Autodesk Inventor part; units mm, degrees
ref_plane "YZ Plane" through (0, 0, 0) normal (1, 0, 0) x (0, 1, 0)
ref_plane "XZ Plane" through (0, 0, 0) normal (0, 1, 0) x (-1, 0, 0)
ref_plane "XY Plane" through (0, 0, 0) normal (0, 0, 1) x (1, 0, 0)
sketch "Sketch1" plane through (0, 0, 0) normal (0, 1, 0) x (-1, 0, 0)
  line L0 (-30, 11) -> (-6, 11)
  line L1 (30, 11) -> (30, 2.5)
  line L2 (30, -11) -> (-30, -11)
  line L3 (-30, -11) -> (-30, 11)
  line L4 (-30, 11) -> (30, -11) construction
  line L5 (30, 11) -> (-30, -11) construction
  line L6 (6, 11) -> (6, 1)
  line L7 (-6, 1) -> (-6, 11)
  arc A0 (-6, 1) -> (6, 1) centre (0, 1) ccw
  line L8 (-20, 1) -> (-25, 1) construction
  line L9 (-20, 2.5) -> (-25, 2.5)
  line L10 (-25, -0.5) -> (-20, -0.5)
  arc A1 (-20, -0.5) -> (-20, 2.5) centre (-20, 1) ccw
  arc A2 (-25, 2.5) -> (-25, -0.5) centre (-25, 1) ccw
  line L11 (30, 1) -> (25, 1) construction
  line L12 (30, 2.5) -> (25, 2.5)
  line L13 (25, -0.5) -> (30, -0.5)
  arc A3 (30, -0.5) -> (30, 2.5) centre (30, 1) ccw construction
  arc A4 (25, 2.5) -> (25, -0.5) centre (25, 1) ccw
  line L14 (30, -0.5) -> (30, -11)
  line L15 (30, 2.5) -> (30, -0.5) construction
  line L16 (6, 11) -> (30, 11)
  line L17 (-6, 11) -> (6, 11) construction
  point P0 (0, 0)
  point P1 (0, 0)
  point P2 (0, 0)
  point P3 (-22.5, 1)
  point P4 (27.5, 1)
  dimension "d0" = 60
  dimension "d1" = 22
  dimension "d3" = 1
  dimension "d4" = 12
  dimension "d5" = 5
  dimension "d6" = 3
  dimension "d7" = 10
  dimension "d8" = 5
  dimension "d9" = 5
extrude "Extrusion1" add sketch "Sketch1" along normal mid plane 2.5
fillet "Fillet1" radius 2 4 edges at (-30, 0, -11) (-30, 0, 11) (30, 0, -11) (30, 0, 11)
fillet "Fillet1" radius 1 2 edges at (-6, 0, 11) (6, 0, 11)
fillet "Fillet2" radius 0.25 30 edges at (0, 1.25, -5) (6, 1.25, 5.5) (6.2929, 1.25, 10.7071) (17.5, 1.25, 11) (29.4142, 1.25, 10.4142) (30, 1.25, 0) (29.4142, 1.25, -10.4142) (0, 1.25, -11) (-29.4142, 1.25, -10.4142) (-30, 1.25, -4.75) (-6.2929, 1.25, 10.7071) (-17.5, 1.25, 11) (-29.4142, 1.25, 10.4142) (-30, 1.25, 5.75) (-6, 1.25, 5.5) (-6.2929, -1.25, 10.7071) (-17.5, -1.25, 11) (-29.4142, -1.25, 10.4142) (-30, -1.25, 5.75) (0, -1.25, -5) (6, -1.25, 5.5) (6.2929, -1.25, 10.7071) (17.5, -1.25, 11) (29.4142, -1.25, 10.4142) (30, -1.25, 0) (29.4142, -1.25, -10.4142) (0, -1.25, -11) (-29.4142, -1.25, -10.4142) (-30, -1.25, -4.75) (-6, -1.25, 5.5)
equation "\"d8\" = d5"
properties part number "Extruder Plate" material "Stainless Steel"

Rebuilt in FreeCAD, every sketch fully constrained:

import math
import FreeCAD as App
import Part
import Sketcher
Q = App.Units.Quantity


def edges_at(feature, points):
    """Names of the edges that pass closest to the given points."""
    edges = feature.Shape.Edges
    near = lambda p: min(range(len(edges)), key=lambda i: edges[i].distToShape(Part.Vertex(*p))[0])
    return sorted({f"Edge{near(p) + 1}" for p in points})

doc = App.newDocument("Part")
body = doc.addObject("PartDesign::Body", "Body")

# Sketch on XZ plane
sketch1 = body.newObject("Sketcher::SketchObject", "Sketch")
sketch1.AttachmentSupport = (doc.getObject("XZ_Plane"), [""])
sketch1.MapMode = "FlatFace"
sketch1.addGeometry([
    Part.LineSegment(App.Vector(6, 11, 0), App.Vector(30, 11, 0)),  # 0
    Part.LineSegment(App.Vector(30, 11, 0), App.Vector(30, -11, 0)),  # 1
    Part.LineSegment(App.Vector(30, -11, 0), App.Vector(-30, -11, 0)),  # 2
    Part.LineSegment(App.Vector(-30, -11, 0), App.Vector(-30, -0.5, 0)),  # 3
    Part.LineSegment(App.Vector(-30, -0.5, 0), App.Vector(-25, -0.5, 0)),  # 4
    Part.ArcOfCircle(Part.Circle(App.Vector(-25, 1, 0), App.Vector(0, 0, 1), 1.5), math.radians(-90), math.radians(90)),  # 5
    Part.LineSegment(App.Vector(-25, 2.5, 0), App.Vector(-30, 2.5, 0)),  # 6
    Part.LineSegment(App.Vector(-30, 2.5, 0), App.Vector(-30, 11, 0)),  # 7
    Part.LineSegment(App.Vector(-30, 11, 0), App.Vector(-6, 11, 0)),  # 8
    Part.LineSegment(App.Vector(-6, 11, 0), App.Vector(-6, 1, 0)),  # 9
    Part.ArcOfCircle(Part.Circle(App.Vector(0, 1, 0), App.Vector(0, 0, 1), 6), math.radians(180), math.radians(360)),  # 10
    Part.LineSegment(App.Vector(6, 1, 0), App.Vector(6, 11, 0)),  # 11
    Part.LineSegment(App.Vector(25, 2.5, 0), App.Vector(20, 2.5, 0)),  # 12
    Part.ArcOfCircle(Part.Circle(App.Vector(20, 1, 0), App.Vector(0, 0, 1), 1.5), math.radians(90), math.radians(270)),  # 13
    Part.LineSegment(App.Vector(20, -0.5, 0), App.Vector(25, -0.5, 0)),  # 14
    Part.ArcOfCircle(Part.Circle(App.Vector(25, 1, 0), App.Vector(0, 0, 1), 1.5), math.radians(-90), math.radians(90)),  # 15
], False)
sketch1.addConstraint([
    Sketcher.Constraint("Coincident", 0, 2, 1, 1),
    Sketcher.Constraint("Coincident", 1, 2, 2, 1),
    Sketcher.Constraint("Coincident", 2, 2, 3, 1),
    Sketcher.Constraint("Coincident", 3, 2, 4, 1),
    Sketcher.Constraint("Tangent", 4, 2, 5, 1),
    Sketcher.Constraint("Tangent", 5, 2, 6, 1),
    Sketcher.Constraint("Coincident", 6, 2, 7, 1),
    Sketcher.Constraint("Coincident", 7, 2, 8, 1),
    Sketcher.Constraint("Coincident", 8, 2, 9, 1),
    Sketcher.Constraint("Tangent", 9, 2, 10, 1),
    Sketcher.Constraint("Tangent", 10, 2, 11, 1),
    Sketcher.Constraint("Coincident", 11, 2, 0, 1),
    Sketcher.Constraint("Tangent", 12, 2, 13, 1),
    Sketcher.Constraint("Tangent", 13, 2, 14, 1),
    Sketcher.Constraint("Tangent", 14, 2, 15, 1),
    Sketcher.Constraint("Tangent", 15, 2, 12, 1),
    Sketcher.Constraint("Horizontal", 0),
    Sketcher.Constraint("Vertical", 1),
    Sketcher.Constraint("Horizontal", 2),
    Sketcher.Constraint("Vertical", 3),
    Sketcher.Constraint("Horizontal", 4),
    Sketcher.Constraint("Horizontal", 6),
    Sketcher.Constraint("Vertical", 7),
    Sketcher.Constraint("Horizontal", 8),
    Sketcher.Constraint("Vertical", 9),
    Sketcher.Constraint("Vertical", 11),
    Sketcher.Constraint("Horizontal", 12),
    Sketcher.Constraint("Horizontal", 14),
    Sketcher.Constraint("Equal", 5, 13),
    Sketcher.Constraint("Symmetric", 0, 2, 2, 2, -1, 1),
    Sketcher.Constraint("Symmetric", 1, 2, 7, 2, -1, 1),
    Sketcher.Constraint("Symmetric", 5, 3, 15, 3, -2),
    Sketcher.Constraint("PointOnObject", 10, 3, -2),
    Sketcher.Constraint("Horizontal", 5, 3, 10, 3),
    Sketcher.Constraint("Equal", 6, 12),
    Sketcher.Constraint("Radius", 10, Q("6 mm")),
    Sketcher.Constraint("Radius", 5, Q("1.5 mm")),
    Sketcher.Constraint("DistanceX", 2, 2, 2, 1, Q("60 mm")),
    Sketcher.Constraint("DistanceX", 4, 1, 4, 2, Q("5 mm")),
    Sketcher.Constraint("DistanceY", 1, 2, 1, 1, Q("22 mm")),
    Sketcher.Constraint("DistanceY", 9, 2, 9, 1, Q("10 mm")),
])
pad1 = body.newObject("PartDesign::Pad", "Pad")
pad1.Profile = sketch1
pad1.Length = 2.5
pad1.Midplane = True
doc.recompute()

fillet = body.newObject("PartDesign::Fillet", "Fillet")
fillet.Base = (pad1, edges_at(pad1, [
    (-30, 0, -11),
    (-30, 0, 11),
    (30, 0, -11),
    (30, 0, 11),
]))
fillet.Radius = 2
doc.recompute()

fillet2 = body.newObject("PartDesign::Fillet", "Fillet001")
fillet2.Base = (fillet, edges_at(fillet, [(-6, 0, 11), (6, 0, 11)]))
fillet2.Radius = 1
doc.recompute()

fillet3 = body.newObject("PartDesign::Fillet", "Fillet002")
fillet3.Base = (fillet2, edges_at(fillet2, [
    (0, 1.25, -5),
    (6, 1.25, 5.5),
    (6.293, 1.25, 10.707),
    (17.5, 1.25, 11),
    (29.414, 1.25, 10.414),
    (30, 1.25, 0),
    (29.414, 1.25, -10.414),
    (0, 1.25, -11),
    (-29.414, 1.25, -10.414),
    (-30, 1.25, -4.75),
    (-6.293, 1.25, 10.707),
    (-17.5, 1.25, 11),
    (-29.414, 1.25, 10.414),
    (-30, 1.25, 5.75),
    (-6, 1.25, 5.5),
    (-6.293, -1.25, 10.707),
    (-17.5, -1.25, 11),
    (-29.414, -1.25, 10.414),
    (-30, -1.25, 5.75),
    (0, -1.25, -5),
    (6, -1.25, 5.5),
    (6.293, -1.25, 10.707),
    (17.5, -1.25, 11),
    (29.414, -1.25, 10.414),
    (30, -1.25, 0),
    (29.414, -1.25, -10.414),
    (0, -1.25, -11),
    (-29.414, -1.25, -10.414),
    (-30, -1.25, -4.75),
    (-6, -1.25, 5.5),
]))
fillet3.Radius = 0.25

doc.recompute()
